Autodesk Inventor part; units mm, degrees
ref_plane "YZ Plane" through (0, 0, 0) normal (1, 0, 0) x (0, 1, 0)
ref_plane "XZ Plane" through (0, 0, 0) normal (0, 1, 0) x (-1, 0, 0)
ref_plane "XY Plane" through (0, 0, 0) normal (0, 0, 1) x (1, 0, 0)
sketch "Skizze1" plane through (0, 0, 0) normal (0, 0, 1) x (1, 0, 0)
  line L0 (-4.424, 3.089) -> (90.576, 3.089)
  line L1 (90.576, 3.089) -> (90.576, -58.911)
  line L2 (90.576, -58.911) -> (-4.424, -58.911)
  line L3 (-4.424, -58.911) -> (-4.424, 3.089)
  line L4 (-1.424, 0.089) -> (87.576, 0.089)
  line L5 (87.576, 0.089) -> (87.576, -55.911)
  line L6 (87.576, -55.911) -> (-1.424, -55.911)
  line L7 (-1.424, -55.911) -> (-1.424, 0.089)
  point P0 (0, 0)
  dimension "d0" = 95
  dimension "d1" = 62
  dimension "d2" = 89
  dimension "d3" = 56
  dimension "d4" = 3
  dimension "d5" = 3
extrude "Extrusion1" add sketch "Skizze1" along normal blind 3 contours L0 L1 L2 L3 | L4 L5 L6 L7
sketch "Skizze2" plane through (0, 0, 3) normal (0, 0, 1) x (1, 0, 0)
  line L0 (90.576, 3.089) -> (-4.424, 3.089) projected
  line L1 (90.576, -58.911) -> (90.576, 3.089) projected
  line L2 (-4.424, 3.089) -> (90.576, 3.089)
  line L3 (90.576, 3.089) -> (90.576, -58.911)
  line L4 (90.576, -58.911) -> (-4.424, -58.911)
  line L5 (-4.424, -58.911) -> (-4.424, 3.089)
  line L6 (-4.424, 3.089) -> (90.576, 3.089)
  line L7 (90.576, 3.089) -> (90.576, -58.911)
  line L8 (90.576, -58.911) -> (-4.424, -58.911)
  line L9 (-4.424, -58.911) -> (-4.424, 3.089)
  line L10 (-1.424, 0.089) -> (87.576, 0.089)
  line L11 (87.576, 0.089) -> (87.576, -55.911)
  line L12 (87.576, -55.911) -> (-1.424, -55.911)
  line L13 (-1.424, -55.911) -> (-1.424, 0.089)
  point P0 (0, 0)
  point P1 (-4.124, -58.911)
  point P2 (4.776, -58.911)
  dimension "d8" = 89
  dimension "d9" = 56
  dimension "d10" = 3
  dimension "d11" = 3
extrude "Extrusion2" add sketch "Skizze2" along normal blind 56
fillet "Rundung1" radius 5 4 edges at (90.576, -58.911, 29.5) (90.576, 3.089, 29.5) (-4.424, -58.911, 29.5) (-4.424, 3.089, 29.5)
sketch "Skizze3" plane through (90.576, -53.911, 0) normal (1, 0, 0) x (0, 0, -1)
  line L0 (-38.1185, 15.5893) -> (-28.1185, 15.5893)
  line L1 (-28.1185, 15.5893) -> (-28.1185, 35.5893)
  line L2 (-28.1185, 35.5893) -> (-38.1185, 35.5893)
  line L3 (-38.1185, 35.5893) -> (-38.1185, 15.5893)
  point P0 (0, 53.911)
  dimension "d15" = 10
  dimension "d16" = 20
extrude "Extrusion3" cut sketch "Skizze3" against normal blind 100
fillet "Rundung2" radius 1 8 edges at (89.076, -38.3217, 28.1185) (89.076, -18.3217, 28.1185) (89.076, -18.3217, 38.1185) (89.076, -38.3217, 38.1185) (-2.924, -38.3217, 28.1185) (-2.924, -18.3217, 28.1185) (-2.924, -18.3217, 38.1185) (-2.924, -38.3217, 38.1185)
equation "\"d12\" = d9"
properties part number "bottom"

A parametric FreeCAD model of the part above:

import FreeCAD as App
import Part
import Sketcher

V = App.Vector
Q = App.Units.Quantity


def edges_at(feature, points):
    """Names of the edges that pass closest to the given points."""
    edges = feature.Shape.Edges
    near = lambda p: min(range(len(edges)), key=lambda i: edges[i].distToShape(Part.Vertex(*p))[0])
    return sorted({f"Edge{near(p) + 1}" for p in points})


def add_polygon(sketch, points):
    """Adds a closed chain of lines whose ends are joined by coincident constraints."""
    first, n = sketch.GeometryCount, len(points)
    for a, b in zip(points, points[1:] + points[:1]):
        sketch.addGeometry(Part.LineSegment(App.Vector(*a, 0), App.Vector(*b, 0)), False)
    for i in range(n):
        sketch.addConstraint(Sketcher.Constraint("Coincident", first + i, 2, first + (i + 1) % n, 1))

doc = App.newDocument("Part")
body = doc.addObject("PartDesign::Body", "Body")

# Sketch on XY plane
sketch1 = doc.addObject("Sketcher::SketchObject", "Sketch")
body.addObject(sketch1)
sketch1.AttachmentSupport = (doc.XY_Plane, [""])
sketch1.MapMode = "FlatFace"
add_polygon(sketch1, [(90.576, 3.089), (-4.424, 3.089), (-4.424, -58.911), (90.576, -58.911)])  # lines 0-3
sketch1.addConstraint([
    Sketcher.Constraint("Horizontal", 0),
    Sketcher.Constraint("Vertical", 1),
    Sketcher.Constraint("Horizontal", 2),
    Sketcher.Constraint("Vertical", 3),
    Sketcher.Constraint("DistanceX", 0, 2, 0, 1, Q("95 mm")),
    Sketcher.Constraint("DistanceY", 1, 2, 1, 1, Q("62 mm")),
    Sketcher.Constraint("DistanceX", 0, 2, -1, 1, Q("4.424 mm")),
    Sketcher.Constraint("DistanceY", -1, 1, 0, 2, Q("3.089 mm")),
])
pad1 = doc.addObject("PartDesign::Pad", "Pad")
body.addObject(pad1)
pad1.Profile = sketch1
pad1.Length = 3

# Sketch on XY plane
sketch2 = doc.addObject("Sketcher::SketchObject", "Sketch001")
body.addObject(sketch2)
sketch2.AttachmentSupport = (doc.XY_Plane, [""])
sketch2.MapMode = "FlatFace"
sketch2.AttachmentOffset = App.Placement(V(0, 0, 3), App.Rotation())
add_polygon(sketch2, [(90.576, -58.911), (90.576, 3.089), (-4.424, 3.089), (-4.424, -58.911)])  # lines 0-3
add_polygon(sketch2, [(-1.424, -55.911), (-1.424, 0.089), (87.576, 0.089), (87.576, -55.911)])  # lines 4-7
sketch2.addConstraint([
    Sketcher.Constraint("Vertical", 0),
    Sketcher.Constraint("Horizontal", 1),
    Sketcher.Constraint("Vertical", 2),
    Sketcher.Constraint("Horizontal", 3),
    Sketcher.Constraint("Vertical", 4),
    Sketcher.Constraint("Horizontal", 5),
    Sketcher.Constraint("Vertical", 6),
    Sketcher.Constraint("Horizontal", 7),
    Sketcher.Constraint("DistanceX", 5, 1, 5, 2, Q("89 mm")),
    Sketcher.Constraint("DistanceY", 4, 1, 4, 2, Q("56 mm")),
    Sketcher.Constraint("DistanceX", 1, 2, 4, 2, Q("3 mm")),
    Sketcher.Constraint("DistanceY", 4, 2, 1, 2, Q("3 mm")),
    Sketcher.Constraint("DistanceX", 5, 2, 0, 2, Q("3 mm")),
    Sketcher.Constraint("DistanceY", 3, 2, 6, 2, Q("3 mm")),
    Sketcher.Constraint("DistanceX", -1, 1, 0, 2, Q("90.576 mm")),
    Sketcher.Constraint("DistanceY", -1, 1, 0, 2, Q("3.089 mm")),
])
pad2 = doc.addObject("PartDesign::Pad", "Pad001")
body.addObject(pad2)
pad2.Profile = sketch2
pad2.Length = 56
doc.recompute()

fillet = doc.addObject("PartDesign::Fillet", "Fillet")
body.addObject(fillet)
fillet.Base = (pad2, edges_at(pad2, [
    (90.576, -58.911, 29.5),
    (90.576, 3.089, 29.5),
    (-4.424, -58.911, 29.5),
    (-4.424, 3.089, 29.5),
]))
fillet.Radius = 5

# Sketch on YZ plane
sketch3 = doc.addObject("Sketcher::SketchObject", "Sketch002")
body.addObject(sketch3)
sketch3.AttachmentSupport = (doc.YZ_Plane, [""])
sketch3.MapMode = "FlatFace"
sketch3.AttachmentOffset = App.Placement(V(0, 0, 90.576), App.Rotation())
add_polygon(sketch3, [(-18.3217, 38.1185), (-38.3217, 38.1185), (-38.3217, 28.1185), (-18.3217, 28.1185)])  # lines 0-3
sketch3.addConstraint([
    Sketcher.Constraint("Horizontal", 0),
    Sketcher.Constraint("Vertical", 1),
    Sketcher.Constraint("Horizontal", 2),
    Sketcher.Constraint("Vertical", 3),
    Sketcher.Constraint("DistanceX", 0, 2, 0, 1, Q("20 mm")),
    Sketcher.Constraint("DistanceY", 1, 2, 1, 1, Q("10 mm")),
    Sketcher.Constraint("DistanceX", 0, 2, -1, 1, Q("38.3217 mm")),
    Sketcher.Constraint("DistanceY", -1, 1, 0, 2, Q("38.1185 mm")),
])
pocket1 = doc.addObject("PartDesign::Pocket", "Pocket")
body.addObject(pocket1)
pocket1.Profile = sketch3
pocket1.Length = 100
doc.recompute()

fillet2 = doc.addObject("PartDesign::Fillet", "Fillet001")
body.addObject(fillet2)
fillet2.Base = (pocket1, edges_at(pocket1, [
    (89.076, -38.322, 28.119),
    (89.076, -18.322, 28.119),
    (89.076, -18.322, 38.118),
    (89.076, -38.322, 38.118),
    (-2.924, -38.322, 28.119),
    (-2.924, -18.322, 28.119),
    (-2.924, -18.322, 38.118),
    (-2.924, -38.322, 38.118),
]))
fillet2.Radius = 1

doc.recompute()
